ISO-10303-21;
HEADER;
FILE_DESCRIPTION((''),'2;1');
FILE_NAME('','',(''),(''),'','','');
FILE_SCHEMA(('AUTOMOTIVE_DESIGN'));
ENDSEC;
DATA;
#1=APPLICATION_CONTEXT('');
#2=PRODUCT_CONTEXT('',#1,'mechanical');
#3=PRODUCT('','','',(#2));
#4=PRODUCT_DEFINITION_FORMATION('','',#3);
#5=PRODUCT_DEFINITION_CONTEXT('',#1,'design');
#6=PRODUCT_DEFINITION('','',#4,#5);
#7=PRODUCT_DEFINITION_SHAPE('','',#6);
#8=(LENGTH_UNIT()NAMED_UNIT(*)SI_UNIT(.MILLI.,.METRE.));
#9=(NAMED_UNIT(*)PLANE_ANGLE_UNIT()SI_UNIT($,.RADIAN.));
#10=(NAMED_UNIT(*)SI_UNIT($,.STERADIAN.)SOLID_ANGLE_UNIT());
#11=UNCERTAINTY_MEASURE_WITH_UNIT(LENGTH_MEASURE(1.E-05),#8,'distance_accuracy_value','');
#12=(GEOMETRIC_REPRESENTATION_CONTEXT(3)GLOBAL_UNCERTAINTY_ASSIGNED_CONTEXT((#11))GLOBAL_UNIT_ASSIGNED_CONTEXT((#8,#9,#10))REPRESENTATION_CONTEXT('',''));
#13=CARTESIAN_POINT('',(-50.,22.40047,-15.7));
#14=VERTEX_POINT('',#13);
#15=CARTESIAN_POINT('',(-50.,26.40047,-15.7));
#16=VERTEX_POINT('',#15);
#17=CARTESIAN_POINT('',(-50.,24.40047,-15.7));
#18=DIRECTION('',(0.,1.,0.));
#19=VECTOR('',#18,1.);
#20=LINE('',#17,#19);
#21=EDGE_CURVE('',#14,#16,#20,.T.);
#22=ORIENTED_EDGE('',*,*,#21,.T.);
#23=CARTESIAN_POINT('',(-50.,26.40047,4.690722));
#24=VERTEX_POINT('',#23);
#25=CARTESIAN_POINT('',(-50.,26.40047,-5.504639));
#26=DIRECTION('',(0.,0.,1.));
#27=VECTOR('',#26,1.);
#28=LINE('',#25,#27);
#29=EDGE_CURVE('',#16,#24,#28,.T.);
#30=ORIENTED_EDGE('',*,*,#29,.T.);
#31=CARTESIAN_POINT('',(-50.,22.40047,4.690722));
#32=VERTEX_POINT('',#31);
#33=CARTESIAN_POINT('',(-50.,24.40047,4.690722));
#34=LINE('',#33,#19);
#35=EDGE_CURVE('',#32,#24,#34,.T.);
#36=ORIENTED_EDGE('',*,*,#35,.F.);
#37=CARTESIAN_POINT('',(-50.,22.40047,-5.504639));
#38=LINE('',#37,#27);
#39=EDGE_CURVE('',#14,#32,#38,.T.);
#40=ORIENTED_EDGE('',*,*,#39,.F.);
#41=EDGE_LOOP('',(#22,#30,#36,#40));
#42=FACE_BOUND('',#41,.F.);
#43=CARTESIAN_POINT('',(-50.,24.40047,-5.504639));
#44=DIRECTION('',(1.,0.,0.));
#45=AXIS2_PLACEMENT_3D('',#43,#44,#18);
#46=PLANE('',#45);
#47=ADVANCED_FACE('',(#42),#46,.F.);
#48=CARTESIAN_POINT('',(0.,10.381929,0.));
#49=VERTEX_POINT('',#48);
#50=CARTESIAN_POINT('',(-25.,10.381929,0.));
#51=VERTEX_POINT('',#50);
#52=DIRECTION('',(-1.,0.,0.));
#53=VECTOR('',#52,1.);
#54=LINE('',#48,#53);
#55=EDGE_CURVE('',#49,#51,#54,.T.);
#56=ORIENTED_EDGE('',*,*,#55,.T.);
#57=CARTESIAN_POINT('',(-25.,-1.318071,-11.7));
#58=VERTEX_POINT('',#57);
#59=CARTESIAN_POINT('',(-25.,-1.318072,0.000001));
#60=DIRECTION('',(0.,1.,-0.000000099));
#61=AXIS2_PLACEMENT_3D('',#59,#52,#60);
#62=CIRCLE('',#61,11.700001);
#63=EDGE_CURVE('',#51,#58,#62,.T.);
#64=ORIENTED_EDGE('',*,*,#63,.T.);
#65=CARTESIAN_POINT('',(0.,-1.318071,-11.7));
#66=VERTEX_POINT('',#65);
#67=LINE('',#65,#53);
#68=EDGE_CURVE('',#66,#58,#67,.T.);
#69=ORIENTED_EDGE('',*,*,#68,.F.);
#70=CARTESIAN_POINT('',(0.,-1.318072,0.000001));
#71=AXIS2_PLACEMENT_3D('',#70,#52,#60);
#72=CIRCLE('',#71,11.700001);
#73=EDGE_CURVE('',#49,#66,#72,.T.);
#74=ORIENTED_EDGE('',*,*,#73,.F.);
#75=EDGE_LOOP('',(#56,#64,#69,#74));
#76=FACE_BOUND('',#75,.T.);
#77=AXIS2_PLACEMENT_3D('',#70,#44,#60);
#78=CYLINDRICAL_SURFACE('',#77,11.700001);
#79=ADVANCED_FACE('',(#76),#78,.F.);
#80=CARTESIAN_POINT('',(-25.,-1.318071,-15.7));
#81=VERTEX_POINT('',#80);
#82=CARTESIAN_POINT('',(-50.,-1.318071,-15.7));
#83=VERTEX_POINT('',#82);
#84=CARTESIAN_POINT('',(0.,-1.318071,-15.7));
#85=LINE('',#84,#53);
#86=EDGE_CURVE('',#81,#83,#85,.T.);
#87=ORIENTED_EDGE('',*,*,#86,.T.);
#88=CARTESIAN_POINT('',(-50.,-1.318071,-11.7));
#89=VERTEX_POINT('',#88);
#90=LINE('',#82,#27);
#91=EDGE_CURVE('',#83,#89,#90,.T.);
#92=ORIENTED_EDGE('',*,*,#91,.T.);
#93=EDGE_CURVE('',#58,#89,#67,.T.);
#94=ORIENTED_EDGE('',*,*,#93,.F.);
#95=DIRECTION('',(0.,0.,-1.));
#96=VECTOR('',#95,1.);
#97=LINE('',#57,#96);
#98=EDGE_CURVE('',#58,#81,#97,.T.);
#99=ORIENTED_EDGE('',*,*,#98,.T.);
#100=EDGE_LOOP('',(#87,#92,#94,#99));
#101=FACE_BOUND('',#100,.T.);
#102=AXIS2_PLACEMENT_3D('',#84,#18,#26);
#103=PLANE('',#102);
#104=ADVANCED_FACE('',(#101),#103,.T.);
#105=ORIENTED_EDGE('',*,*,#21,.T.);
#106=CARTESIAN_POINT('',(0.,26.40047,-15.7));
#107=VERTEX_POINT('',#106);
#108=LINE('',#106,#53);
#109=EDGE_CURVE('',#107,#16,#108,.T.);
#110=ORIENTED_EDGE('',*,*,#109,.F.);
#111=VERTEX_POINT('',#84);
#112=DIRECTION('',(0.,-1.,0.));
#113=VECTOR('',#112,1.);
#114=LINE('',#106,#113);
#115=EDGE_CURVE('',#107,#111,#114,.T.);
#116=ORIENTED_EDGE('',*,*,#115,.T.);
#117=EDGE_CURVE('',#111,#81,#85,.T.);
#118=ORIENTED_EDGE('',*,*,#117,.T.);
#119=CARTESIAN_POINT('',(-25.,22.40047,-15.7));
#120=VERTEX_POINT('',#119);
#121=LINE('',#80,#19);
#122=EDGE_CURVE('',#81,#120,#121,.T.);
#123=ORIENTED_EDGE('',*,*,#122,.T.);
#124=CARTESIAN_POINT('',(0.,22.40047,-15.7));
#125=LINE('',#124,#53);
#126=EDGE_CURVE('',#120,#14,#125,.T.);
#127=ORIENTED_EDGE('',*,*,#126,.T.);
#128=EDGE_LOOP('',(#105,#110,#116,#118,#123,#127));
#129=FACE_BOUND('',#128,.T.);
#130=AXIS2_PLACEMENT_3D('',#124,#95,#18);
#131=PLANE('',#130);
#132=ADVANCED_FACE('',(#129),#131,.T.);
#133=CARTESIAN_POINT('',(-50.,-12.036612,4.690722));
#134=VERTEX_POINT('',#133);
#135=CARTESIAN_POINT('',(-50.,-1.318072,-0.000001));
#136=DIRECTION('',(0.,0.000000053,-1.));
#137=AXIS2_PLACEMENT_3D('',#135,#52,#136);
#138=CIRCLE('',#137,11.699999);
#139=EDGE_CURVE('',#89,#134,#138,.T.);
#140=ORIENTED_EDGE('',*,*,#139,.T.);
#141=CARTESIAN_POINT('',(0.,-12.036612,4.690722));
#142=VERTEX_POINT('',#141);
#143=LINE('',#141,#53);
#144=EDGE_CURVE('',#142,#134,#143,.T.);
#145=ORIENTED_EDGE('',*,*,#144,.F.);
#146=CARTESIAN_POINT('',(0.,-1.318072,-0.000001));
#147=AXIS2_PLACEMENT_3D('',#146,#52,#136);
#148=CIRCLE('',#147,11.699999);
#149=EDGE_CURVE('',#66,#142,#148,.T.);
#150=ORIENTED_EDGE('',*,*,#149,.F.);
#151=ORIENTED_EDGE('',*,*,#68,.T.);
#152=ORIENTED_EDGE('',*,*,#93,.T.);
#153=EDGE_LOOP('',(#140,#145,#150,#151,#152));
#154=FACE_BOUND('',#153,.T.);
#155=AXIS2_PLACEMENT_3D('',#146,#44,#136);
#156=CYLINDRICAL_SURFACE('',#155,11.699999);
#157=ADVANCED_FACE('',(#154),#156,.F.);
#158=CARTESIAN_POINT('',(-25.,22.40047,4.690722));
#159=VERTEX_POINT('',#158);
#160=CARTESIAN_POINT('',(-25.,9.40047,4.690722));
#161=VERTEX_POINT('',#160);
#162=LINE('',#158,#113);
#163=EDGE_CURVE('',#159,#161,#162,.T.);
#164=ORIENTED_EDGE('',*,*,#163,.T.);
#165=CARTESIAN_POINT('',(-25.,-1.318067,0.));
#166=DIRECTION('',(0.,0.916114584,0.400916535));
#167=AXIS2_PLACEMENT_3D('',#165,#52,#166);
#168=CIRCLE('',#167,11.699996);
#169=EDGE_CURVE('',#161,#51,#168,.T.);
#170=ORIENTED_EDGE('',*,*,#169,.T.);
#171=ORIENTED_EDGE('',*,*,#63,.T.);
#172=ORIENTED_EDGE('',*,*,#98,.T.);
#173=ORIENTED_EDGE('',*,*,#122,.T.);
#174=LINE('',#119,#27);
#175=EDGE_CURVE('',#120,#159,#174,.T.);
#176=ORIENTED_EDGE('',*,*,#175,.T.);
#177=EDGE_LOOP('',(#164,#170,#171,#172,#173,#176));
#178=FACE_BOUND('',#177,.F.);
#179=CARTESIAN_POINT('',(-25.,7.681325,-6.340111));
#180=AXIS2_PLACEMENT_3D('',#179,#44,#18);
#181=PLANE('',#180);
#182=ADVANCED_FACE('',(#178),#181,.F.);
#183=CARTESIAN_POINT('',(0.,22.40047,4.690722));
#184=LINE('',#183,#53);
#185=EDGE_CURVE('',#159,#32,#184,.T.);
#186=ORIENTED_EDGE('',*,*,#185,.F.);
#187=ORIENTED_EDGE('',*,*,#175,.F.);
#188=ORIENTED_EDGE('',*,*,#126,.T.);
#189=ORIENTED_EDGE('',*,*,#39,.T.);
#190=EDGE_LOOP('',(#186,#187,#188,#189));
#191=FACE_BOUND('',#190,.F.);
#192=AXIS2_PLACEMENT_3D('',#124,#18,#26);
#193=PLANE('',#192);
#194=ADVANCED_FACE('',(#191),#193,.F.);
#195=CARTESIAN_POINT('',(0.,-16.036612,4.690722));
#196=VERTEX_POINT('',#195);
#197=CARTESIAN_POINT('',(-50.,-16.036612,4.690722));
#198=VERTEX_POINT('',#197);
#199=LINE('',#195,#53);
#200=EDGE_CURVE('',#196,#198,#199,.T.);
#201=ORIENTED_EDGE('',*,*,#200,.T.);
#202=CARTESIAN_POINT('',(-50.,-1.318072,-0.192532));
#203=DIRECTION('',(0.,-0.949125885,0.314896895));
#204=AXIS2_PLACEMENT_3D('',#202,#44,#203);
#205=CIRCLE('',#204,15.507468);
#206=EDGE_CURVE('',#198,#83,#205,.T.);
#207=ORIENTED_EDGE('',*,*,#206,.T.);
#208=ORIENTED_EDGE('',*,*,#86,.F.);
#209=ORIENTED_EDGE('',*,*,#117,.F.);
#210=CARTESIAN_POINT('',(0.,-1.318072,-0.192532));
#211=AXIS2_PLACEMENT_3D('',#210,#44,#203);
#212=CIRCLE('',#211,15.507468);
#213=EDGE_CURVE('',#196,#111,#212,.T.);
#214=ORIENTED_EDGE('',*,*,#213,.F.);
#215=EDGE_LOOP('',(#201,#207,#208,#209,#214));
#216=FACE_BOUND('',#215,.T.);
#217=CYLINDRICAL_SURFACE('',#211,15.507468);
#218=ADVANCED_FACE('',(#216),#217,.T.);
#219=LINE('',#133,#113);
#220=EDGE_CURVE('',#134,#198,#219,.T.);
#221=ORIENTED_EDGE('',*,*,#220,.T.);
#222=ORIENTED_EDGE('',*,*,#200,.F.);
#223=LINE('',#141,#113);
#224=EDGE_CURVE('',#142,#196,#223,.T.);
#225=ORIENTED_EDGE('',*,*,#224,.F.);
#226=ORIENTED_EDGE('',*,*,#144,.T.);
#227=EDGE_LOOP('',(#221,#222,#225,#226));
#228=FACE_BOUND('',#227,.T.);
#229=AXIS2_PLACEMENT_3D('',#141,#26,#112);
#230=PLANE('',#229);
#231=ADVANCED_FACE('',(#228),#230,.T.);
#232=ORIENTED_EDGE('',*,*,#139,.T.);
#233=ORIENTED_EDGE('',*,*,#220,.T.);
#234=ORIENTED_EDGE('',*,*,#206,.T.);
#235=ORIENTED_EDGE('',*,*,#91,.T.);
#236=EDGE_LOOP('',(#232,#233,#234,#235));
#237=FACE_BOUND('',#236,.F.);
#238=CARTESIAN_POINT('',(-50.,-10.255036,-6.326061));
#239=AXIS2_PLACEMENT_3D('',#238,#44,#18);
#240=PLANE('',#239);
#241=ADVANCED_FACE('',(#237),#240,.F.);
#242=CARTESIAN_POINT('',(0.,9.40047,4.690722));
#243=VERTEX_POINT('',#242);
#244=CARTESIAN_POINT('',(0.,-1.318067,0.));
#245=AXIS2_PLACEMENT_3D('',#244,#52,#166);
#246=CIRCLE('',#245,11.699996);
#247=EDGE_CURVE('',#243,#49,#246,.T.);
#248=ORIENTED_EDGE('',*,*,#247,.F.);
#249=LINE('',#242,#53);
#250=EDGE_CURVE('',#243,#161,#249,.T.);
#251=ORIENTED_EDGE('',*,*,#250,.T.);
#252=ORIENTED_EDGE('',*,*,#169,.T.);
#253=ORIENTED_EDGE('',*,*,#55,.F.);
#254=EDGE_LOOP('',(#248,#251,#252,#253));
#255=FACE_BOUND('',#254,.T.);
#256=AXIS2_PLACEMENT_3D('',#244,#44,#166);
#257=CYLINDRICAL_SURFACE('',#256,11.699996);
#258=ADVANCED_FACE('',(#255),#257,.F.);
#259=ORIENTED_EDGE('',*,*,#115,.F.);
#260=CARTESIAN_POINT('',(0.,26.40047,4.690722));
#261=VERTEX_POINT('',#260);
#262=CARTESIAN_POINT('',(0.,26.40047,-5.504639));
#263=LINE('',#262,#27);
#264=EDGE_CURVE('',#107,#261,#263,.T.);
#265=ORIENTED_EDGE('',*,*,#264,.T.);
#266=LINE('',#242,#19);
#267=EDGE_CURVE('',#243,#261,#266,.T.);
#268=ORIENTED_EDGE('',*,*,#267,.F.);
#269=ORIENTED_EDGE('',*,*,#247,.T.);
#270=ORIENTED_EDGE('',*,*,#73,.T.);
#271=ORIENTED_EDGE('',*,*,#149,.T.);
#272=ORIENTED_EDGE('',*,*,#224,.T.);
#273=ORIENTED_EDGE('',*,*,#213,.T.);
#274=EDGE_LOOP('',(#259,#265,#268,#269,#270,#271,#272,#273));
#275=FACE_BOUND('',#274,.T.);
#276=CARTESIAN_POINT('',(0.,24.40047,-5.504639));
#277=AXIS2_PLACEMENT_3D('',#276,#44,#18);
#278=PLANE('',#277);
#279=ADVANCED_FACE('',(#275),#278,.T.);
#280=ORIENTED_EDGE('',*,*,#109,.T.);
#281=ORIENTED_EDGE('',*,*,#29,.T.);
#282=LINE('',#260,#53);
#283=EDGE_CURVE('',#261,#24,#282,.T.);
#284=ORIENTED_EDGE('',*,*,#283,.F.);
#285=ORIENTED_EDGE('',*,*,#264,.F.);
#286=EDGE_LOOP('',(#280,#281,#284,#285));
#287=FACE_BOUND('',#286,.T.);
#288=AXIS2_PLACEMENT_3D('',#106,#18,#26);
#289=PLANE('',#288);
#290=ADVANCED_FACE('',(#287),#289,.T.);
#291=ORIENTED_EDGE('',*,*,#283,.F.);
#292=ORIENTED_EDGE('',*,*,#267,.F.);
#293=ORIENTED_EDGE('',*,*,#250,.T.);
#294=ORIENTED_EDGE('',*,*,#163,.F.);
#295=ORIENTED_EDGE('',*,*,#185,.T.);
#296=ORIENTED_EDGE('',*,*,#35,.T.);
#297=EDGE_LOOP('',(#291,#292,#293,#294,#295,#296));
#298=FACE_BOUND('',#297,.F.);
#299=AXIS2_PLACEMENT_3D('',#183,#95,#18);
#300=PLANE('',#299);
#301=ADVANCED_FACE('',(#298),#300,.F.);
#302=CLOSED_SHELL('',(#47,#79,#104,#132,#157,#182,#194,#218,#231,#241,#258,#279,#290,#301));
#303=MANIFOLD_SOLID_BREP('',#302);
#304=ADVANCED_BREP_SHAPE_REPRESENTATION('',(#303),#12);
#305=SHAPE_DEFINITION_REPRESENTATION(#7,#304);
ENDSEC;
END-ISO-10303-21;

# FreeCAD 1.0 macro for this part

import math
import FreeCAD as App
import Part
import Sketcher

doc = App.newDocument("Part")
body = doc.addObject("PartDesign::Body", "Body")

sketch1 = doc.addObject("Sketcher::SketchObject", "Sketch")
body.addObject(sketch1)
sketch1.AttachmentSupport = (doc.YZ_Plane, [""])
sketch1.MapMode = "FlatFace"
sketch1.addGeometry([
    Part.ArcOfCircle(Part.Circle(App.Vector(-1.3, 0, 0), App.Vector(0, 0, 1), 11.7), math.radians(0), math.radians(24)),
    Part.ArcOfCircle(Part.Circle(App.Vector(-1.3, 0, 0), App.Vector(0, 0, 1), 11.7), math.radians(-90), math.radians(0)),
    Part.LineSegment(App.Vector(-1.3, -11.7, 0), App.Vector(-1.3, -15.7, 0)),
    Part.LineSegment(App.Vector(-1.3, -15.7, 0), App.Vector(22.4, -15.7, 0)),
    Part.LineSegment(App.Vector(22.4, -15.7, 0), App.Vector(22.4, 4.7, 0)),
    Part.LineSegment(App.Vector(22.4, 4.7, 0), App.Vector(9.4, 4.7, 0)),
], False)
sketch1.addConstraint([
    Sketcher.Constraint("Tangent", 0, 1, 1, 2),
    Sketcher.Constraint("Coincident", 1, 1, 2, 1),
    Sketcher.Constraint("Coincident", 2, 2, 3, 1),
    Sketcher.Constraint("Coincident", 3, 2, 4, 1),
    Sketcher.Constraint("Coincident", 4, 2, 5, 1),
    Sketcher.Constraint("Coincident", 5, 2, 0, 2),
    Sketcher.Constraint("Vertical", 2),
    Sketcher.Constraint("Horizontal", 3),
    Sketcher.Constraint("Vertical", 4),
    Sketcher.Constraint("Horizontal", 5),
    Sketcher.Constraint("PointOnObject", 0, 3, -1),
    Sketcher.Constraint("PointOnObject", 0, 1, -1),
    Sketcher.Constraint("Radius", 1, 11.700001),
    Sketcher.Constraint("DistanceX", 5, 2, 5, 1, 13.0),
    Sketcher.Constraint("DistanceY", 2, 2, 2, 1, 4.0),
    Sketcher.Constraint("DistanceX", 1, 1, 0, 1, 11.7),
    Sketcher.Constraint("Radius", 0, 11.699996),
    Sketcher.Constraint("DistanceX", 3, 1, 3, 2, 23.718541),
    Sketcher.Constraint("DistanceX", -1, 1, 0, 1, 10.381929),
])
pad1 = doc.addObject("PartDesign::Pad", "Pad")
body.addObject(pad1)
pad1.Profile = sketch1
pad1.Length = 25
pad1.Reversed = True

sketch2 = doc.addObject("Sketcher::SketchObject", "Sketch001")
body.addObject(sketch2)
sketch2.AttachmentSupport = (doc.YZ_Plane, [""])
sketch2.MapMode = "FlatFace"
sketch2.addGeometry([
    Part.LineSegment(App.Vector(-1.3, -15.7, 0), App.Vector(-1.3, -11.7, 0)),
    Part.ArcOfCircle(Part.Circle(App.Vector(-1.3, 0, 0), App.Vector(0, 0, 1), 11.7), math.radians(156), math.radians(270)),
    Part.LineSegment(App.Vector(-12, 4.7, 0), App.Vector(-16, 4.7, 0)),
    Part.ArcOfCircle(Part.Circle(App.Vector(-1.3, -0.2, 0), App.Vector(0, 0, 1), 15.5), math.radians(162), math.radians(270)),
], False)
sketch2.addConstraint([
    Sketcher.Constraint("Coincident", 0, 2, 1, 2),
    Sketcher.Constraint("Coincident", 1, 1, 2, 1),
    Sketcher.Constraint("Coincident", 2, 2, 3, 1),
    Sketcher.Constraint("Coincident", 3, 2, 0, 1),
    Sketcher.Constraint("Vertical", 0),
    Sketcher.Constraint("Horizontal", 2),
    Sketcher.Constraint("PointOnObject", 1, 3, -1),
    Sketcher.Constraint("Vertical", 1, 3, 3, 3),
    Sketcher.Constraint("Vertical", 3, 3, 0, 2),
    Sketcher.Constraint("Equal", 2, 0),
    Sketcher.Constraint("Radius", 1, 11.699999),
    Sketcher.Constraint("DistanceX", 2, 2, 2, 1, 4.0),
    Sketcher.Constraint("Radius", 3, 15.507468),
    Sketcher.Constraint("DistanceX", 1, 3, -1, 1, 1.318072),
])
pad2 = doc.addObject("PartDesign::Pad", "Pad001")
body.addObject(pad2)
pad2.Profile = sketch2
pad2.Length = 50
pad2.Reversed = True

sketch3 = doc.addObject("Sketcher::SketchObject", "Sketch002")
body.addObject(sketch3)
sketch3.AttachmentSupport = (doc.YZ_Plane, [""])
sketch3.MapMode = "FlatFace"
sketch3.addGeometry([
    Part.LineSegment(App.Vector(22.4, 4.7, 0), App.Vector(22.4, -15.7, 0)),
    Part.LineSegment(App.Vector(22.4, -15.7, 0), App.Vector(26.4, -15.7, 0)),
    Part.LineSegment(App.Vector(26.4, -15.7, 0), App.Vector(26.4, 4.7, 0)),
    Part.LineSegment(App.Vector(26.4, 4.7, 0), App.Vector(22.4, 4.7, 0)),
], False)
sketch3.addConstraint([
    Sketcher.Constraint("Coincident", 0, 2, 1, 1),
    Sketcher.Constraint("Coincident", 1, 2, 2, 1),
    Sketcher.Constraint("Coincident", 2, 2, 3, 1),
    Sketcher.Constraint("Coincident", 3, 2, 0, 1),
    Sketcher.Constraint("Vertical", 0),
    Sketcher.Constraint("Horizontal", 1),
    Sketcher.Constraint("Vertical", 2),
    Sketcher.Constraint("Horizontal", 3),
    Sketcher.Constraint("DistanceX", 1, 1, 1, 2, 4.0),
    Sketcher.Constraint("DistanceY", 0, 2, -1, 1, 15.7),
    Sketcher.Constraint("DistanceY", 0, 2, 0, 1, 20.390722),
    Sketcher.Constraint("DistanceX", -1, 1, 0, 2, 22.40047),
])
pad3 = doc.addObject("PartDesign::Pad", "Pad002")
body.addObject(pad3)
pad3.Profile = sketch3
pad3.Length = 50
pad3.Reversed = True
body2 = doc.addObject("PartDesign::Body", "Body001")
doc.recompute()

body2.BaseFeature = body
doc.recompute()
body3 = doc.addObject("PartDesign::Body", "Body002")
doc.recompute()

mirroring = doc.addObject("Part::Mirroring", "Mirroring")
mirroring.Source = body2
mirroring.Base = App.Vector(0, 10.566171, -6.716884)
mirroring.Normal = App.Vector(1, 0, 0)
body3.BaseFeature = mirroring
doc.recompute()
body.Visibility = False
body3.Visibility = False
mirroring.Visibility = False

doc.recompute()
